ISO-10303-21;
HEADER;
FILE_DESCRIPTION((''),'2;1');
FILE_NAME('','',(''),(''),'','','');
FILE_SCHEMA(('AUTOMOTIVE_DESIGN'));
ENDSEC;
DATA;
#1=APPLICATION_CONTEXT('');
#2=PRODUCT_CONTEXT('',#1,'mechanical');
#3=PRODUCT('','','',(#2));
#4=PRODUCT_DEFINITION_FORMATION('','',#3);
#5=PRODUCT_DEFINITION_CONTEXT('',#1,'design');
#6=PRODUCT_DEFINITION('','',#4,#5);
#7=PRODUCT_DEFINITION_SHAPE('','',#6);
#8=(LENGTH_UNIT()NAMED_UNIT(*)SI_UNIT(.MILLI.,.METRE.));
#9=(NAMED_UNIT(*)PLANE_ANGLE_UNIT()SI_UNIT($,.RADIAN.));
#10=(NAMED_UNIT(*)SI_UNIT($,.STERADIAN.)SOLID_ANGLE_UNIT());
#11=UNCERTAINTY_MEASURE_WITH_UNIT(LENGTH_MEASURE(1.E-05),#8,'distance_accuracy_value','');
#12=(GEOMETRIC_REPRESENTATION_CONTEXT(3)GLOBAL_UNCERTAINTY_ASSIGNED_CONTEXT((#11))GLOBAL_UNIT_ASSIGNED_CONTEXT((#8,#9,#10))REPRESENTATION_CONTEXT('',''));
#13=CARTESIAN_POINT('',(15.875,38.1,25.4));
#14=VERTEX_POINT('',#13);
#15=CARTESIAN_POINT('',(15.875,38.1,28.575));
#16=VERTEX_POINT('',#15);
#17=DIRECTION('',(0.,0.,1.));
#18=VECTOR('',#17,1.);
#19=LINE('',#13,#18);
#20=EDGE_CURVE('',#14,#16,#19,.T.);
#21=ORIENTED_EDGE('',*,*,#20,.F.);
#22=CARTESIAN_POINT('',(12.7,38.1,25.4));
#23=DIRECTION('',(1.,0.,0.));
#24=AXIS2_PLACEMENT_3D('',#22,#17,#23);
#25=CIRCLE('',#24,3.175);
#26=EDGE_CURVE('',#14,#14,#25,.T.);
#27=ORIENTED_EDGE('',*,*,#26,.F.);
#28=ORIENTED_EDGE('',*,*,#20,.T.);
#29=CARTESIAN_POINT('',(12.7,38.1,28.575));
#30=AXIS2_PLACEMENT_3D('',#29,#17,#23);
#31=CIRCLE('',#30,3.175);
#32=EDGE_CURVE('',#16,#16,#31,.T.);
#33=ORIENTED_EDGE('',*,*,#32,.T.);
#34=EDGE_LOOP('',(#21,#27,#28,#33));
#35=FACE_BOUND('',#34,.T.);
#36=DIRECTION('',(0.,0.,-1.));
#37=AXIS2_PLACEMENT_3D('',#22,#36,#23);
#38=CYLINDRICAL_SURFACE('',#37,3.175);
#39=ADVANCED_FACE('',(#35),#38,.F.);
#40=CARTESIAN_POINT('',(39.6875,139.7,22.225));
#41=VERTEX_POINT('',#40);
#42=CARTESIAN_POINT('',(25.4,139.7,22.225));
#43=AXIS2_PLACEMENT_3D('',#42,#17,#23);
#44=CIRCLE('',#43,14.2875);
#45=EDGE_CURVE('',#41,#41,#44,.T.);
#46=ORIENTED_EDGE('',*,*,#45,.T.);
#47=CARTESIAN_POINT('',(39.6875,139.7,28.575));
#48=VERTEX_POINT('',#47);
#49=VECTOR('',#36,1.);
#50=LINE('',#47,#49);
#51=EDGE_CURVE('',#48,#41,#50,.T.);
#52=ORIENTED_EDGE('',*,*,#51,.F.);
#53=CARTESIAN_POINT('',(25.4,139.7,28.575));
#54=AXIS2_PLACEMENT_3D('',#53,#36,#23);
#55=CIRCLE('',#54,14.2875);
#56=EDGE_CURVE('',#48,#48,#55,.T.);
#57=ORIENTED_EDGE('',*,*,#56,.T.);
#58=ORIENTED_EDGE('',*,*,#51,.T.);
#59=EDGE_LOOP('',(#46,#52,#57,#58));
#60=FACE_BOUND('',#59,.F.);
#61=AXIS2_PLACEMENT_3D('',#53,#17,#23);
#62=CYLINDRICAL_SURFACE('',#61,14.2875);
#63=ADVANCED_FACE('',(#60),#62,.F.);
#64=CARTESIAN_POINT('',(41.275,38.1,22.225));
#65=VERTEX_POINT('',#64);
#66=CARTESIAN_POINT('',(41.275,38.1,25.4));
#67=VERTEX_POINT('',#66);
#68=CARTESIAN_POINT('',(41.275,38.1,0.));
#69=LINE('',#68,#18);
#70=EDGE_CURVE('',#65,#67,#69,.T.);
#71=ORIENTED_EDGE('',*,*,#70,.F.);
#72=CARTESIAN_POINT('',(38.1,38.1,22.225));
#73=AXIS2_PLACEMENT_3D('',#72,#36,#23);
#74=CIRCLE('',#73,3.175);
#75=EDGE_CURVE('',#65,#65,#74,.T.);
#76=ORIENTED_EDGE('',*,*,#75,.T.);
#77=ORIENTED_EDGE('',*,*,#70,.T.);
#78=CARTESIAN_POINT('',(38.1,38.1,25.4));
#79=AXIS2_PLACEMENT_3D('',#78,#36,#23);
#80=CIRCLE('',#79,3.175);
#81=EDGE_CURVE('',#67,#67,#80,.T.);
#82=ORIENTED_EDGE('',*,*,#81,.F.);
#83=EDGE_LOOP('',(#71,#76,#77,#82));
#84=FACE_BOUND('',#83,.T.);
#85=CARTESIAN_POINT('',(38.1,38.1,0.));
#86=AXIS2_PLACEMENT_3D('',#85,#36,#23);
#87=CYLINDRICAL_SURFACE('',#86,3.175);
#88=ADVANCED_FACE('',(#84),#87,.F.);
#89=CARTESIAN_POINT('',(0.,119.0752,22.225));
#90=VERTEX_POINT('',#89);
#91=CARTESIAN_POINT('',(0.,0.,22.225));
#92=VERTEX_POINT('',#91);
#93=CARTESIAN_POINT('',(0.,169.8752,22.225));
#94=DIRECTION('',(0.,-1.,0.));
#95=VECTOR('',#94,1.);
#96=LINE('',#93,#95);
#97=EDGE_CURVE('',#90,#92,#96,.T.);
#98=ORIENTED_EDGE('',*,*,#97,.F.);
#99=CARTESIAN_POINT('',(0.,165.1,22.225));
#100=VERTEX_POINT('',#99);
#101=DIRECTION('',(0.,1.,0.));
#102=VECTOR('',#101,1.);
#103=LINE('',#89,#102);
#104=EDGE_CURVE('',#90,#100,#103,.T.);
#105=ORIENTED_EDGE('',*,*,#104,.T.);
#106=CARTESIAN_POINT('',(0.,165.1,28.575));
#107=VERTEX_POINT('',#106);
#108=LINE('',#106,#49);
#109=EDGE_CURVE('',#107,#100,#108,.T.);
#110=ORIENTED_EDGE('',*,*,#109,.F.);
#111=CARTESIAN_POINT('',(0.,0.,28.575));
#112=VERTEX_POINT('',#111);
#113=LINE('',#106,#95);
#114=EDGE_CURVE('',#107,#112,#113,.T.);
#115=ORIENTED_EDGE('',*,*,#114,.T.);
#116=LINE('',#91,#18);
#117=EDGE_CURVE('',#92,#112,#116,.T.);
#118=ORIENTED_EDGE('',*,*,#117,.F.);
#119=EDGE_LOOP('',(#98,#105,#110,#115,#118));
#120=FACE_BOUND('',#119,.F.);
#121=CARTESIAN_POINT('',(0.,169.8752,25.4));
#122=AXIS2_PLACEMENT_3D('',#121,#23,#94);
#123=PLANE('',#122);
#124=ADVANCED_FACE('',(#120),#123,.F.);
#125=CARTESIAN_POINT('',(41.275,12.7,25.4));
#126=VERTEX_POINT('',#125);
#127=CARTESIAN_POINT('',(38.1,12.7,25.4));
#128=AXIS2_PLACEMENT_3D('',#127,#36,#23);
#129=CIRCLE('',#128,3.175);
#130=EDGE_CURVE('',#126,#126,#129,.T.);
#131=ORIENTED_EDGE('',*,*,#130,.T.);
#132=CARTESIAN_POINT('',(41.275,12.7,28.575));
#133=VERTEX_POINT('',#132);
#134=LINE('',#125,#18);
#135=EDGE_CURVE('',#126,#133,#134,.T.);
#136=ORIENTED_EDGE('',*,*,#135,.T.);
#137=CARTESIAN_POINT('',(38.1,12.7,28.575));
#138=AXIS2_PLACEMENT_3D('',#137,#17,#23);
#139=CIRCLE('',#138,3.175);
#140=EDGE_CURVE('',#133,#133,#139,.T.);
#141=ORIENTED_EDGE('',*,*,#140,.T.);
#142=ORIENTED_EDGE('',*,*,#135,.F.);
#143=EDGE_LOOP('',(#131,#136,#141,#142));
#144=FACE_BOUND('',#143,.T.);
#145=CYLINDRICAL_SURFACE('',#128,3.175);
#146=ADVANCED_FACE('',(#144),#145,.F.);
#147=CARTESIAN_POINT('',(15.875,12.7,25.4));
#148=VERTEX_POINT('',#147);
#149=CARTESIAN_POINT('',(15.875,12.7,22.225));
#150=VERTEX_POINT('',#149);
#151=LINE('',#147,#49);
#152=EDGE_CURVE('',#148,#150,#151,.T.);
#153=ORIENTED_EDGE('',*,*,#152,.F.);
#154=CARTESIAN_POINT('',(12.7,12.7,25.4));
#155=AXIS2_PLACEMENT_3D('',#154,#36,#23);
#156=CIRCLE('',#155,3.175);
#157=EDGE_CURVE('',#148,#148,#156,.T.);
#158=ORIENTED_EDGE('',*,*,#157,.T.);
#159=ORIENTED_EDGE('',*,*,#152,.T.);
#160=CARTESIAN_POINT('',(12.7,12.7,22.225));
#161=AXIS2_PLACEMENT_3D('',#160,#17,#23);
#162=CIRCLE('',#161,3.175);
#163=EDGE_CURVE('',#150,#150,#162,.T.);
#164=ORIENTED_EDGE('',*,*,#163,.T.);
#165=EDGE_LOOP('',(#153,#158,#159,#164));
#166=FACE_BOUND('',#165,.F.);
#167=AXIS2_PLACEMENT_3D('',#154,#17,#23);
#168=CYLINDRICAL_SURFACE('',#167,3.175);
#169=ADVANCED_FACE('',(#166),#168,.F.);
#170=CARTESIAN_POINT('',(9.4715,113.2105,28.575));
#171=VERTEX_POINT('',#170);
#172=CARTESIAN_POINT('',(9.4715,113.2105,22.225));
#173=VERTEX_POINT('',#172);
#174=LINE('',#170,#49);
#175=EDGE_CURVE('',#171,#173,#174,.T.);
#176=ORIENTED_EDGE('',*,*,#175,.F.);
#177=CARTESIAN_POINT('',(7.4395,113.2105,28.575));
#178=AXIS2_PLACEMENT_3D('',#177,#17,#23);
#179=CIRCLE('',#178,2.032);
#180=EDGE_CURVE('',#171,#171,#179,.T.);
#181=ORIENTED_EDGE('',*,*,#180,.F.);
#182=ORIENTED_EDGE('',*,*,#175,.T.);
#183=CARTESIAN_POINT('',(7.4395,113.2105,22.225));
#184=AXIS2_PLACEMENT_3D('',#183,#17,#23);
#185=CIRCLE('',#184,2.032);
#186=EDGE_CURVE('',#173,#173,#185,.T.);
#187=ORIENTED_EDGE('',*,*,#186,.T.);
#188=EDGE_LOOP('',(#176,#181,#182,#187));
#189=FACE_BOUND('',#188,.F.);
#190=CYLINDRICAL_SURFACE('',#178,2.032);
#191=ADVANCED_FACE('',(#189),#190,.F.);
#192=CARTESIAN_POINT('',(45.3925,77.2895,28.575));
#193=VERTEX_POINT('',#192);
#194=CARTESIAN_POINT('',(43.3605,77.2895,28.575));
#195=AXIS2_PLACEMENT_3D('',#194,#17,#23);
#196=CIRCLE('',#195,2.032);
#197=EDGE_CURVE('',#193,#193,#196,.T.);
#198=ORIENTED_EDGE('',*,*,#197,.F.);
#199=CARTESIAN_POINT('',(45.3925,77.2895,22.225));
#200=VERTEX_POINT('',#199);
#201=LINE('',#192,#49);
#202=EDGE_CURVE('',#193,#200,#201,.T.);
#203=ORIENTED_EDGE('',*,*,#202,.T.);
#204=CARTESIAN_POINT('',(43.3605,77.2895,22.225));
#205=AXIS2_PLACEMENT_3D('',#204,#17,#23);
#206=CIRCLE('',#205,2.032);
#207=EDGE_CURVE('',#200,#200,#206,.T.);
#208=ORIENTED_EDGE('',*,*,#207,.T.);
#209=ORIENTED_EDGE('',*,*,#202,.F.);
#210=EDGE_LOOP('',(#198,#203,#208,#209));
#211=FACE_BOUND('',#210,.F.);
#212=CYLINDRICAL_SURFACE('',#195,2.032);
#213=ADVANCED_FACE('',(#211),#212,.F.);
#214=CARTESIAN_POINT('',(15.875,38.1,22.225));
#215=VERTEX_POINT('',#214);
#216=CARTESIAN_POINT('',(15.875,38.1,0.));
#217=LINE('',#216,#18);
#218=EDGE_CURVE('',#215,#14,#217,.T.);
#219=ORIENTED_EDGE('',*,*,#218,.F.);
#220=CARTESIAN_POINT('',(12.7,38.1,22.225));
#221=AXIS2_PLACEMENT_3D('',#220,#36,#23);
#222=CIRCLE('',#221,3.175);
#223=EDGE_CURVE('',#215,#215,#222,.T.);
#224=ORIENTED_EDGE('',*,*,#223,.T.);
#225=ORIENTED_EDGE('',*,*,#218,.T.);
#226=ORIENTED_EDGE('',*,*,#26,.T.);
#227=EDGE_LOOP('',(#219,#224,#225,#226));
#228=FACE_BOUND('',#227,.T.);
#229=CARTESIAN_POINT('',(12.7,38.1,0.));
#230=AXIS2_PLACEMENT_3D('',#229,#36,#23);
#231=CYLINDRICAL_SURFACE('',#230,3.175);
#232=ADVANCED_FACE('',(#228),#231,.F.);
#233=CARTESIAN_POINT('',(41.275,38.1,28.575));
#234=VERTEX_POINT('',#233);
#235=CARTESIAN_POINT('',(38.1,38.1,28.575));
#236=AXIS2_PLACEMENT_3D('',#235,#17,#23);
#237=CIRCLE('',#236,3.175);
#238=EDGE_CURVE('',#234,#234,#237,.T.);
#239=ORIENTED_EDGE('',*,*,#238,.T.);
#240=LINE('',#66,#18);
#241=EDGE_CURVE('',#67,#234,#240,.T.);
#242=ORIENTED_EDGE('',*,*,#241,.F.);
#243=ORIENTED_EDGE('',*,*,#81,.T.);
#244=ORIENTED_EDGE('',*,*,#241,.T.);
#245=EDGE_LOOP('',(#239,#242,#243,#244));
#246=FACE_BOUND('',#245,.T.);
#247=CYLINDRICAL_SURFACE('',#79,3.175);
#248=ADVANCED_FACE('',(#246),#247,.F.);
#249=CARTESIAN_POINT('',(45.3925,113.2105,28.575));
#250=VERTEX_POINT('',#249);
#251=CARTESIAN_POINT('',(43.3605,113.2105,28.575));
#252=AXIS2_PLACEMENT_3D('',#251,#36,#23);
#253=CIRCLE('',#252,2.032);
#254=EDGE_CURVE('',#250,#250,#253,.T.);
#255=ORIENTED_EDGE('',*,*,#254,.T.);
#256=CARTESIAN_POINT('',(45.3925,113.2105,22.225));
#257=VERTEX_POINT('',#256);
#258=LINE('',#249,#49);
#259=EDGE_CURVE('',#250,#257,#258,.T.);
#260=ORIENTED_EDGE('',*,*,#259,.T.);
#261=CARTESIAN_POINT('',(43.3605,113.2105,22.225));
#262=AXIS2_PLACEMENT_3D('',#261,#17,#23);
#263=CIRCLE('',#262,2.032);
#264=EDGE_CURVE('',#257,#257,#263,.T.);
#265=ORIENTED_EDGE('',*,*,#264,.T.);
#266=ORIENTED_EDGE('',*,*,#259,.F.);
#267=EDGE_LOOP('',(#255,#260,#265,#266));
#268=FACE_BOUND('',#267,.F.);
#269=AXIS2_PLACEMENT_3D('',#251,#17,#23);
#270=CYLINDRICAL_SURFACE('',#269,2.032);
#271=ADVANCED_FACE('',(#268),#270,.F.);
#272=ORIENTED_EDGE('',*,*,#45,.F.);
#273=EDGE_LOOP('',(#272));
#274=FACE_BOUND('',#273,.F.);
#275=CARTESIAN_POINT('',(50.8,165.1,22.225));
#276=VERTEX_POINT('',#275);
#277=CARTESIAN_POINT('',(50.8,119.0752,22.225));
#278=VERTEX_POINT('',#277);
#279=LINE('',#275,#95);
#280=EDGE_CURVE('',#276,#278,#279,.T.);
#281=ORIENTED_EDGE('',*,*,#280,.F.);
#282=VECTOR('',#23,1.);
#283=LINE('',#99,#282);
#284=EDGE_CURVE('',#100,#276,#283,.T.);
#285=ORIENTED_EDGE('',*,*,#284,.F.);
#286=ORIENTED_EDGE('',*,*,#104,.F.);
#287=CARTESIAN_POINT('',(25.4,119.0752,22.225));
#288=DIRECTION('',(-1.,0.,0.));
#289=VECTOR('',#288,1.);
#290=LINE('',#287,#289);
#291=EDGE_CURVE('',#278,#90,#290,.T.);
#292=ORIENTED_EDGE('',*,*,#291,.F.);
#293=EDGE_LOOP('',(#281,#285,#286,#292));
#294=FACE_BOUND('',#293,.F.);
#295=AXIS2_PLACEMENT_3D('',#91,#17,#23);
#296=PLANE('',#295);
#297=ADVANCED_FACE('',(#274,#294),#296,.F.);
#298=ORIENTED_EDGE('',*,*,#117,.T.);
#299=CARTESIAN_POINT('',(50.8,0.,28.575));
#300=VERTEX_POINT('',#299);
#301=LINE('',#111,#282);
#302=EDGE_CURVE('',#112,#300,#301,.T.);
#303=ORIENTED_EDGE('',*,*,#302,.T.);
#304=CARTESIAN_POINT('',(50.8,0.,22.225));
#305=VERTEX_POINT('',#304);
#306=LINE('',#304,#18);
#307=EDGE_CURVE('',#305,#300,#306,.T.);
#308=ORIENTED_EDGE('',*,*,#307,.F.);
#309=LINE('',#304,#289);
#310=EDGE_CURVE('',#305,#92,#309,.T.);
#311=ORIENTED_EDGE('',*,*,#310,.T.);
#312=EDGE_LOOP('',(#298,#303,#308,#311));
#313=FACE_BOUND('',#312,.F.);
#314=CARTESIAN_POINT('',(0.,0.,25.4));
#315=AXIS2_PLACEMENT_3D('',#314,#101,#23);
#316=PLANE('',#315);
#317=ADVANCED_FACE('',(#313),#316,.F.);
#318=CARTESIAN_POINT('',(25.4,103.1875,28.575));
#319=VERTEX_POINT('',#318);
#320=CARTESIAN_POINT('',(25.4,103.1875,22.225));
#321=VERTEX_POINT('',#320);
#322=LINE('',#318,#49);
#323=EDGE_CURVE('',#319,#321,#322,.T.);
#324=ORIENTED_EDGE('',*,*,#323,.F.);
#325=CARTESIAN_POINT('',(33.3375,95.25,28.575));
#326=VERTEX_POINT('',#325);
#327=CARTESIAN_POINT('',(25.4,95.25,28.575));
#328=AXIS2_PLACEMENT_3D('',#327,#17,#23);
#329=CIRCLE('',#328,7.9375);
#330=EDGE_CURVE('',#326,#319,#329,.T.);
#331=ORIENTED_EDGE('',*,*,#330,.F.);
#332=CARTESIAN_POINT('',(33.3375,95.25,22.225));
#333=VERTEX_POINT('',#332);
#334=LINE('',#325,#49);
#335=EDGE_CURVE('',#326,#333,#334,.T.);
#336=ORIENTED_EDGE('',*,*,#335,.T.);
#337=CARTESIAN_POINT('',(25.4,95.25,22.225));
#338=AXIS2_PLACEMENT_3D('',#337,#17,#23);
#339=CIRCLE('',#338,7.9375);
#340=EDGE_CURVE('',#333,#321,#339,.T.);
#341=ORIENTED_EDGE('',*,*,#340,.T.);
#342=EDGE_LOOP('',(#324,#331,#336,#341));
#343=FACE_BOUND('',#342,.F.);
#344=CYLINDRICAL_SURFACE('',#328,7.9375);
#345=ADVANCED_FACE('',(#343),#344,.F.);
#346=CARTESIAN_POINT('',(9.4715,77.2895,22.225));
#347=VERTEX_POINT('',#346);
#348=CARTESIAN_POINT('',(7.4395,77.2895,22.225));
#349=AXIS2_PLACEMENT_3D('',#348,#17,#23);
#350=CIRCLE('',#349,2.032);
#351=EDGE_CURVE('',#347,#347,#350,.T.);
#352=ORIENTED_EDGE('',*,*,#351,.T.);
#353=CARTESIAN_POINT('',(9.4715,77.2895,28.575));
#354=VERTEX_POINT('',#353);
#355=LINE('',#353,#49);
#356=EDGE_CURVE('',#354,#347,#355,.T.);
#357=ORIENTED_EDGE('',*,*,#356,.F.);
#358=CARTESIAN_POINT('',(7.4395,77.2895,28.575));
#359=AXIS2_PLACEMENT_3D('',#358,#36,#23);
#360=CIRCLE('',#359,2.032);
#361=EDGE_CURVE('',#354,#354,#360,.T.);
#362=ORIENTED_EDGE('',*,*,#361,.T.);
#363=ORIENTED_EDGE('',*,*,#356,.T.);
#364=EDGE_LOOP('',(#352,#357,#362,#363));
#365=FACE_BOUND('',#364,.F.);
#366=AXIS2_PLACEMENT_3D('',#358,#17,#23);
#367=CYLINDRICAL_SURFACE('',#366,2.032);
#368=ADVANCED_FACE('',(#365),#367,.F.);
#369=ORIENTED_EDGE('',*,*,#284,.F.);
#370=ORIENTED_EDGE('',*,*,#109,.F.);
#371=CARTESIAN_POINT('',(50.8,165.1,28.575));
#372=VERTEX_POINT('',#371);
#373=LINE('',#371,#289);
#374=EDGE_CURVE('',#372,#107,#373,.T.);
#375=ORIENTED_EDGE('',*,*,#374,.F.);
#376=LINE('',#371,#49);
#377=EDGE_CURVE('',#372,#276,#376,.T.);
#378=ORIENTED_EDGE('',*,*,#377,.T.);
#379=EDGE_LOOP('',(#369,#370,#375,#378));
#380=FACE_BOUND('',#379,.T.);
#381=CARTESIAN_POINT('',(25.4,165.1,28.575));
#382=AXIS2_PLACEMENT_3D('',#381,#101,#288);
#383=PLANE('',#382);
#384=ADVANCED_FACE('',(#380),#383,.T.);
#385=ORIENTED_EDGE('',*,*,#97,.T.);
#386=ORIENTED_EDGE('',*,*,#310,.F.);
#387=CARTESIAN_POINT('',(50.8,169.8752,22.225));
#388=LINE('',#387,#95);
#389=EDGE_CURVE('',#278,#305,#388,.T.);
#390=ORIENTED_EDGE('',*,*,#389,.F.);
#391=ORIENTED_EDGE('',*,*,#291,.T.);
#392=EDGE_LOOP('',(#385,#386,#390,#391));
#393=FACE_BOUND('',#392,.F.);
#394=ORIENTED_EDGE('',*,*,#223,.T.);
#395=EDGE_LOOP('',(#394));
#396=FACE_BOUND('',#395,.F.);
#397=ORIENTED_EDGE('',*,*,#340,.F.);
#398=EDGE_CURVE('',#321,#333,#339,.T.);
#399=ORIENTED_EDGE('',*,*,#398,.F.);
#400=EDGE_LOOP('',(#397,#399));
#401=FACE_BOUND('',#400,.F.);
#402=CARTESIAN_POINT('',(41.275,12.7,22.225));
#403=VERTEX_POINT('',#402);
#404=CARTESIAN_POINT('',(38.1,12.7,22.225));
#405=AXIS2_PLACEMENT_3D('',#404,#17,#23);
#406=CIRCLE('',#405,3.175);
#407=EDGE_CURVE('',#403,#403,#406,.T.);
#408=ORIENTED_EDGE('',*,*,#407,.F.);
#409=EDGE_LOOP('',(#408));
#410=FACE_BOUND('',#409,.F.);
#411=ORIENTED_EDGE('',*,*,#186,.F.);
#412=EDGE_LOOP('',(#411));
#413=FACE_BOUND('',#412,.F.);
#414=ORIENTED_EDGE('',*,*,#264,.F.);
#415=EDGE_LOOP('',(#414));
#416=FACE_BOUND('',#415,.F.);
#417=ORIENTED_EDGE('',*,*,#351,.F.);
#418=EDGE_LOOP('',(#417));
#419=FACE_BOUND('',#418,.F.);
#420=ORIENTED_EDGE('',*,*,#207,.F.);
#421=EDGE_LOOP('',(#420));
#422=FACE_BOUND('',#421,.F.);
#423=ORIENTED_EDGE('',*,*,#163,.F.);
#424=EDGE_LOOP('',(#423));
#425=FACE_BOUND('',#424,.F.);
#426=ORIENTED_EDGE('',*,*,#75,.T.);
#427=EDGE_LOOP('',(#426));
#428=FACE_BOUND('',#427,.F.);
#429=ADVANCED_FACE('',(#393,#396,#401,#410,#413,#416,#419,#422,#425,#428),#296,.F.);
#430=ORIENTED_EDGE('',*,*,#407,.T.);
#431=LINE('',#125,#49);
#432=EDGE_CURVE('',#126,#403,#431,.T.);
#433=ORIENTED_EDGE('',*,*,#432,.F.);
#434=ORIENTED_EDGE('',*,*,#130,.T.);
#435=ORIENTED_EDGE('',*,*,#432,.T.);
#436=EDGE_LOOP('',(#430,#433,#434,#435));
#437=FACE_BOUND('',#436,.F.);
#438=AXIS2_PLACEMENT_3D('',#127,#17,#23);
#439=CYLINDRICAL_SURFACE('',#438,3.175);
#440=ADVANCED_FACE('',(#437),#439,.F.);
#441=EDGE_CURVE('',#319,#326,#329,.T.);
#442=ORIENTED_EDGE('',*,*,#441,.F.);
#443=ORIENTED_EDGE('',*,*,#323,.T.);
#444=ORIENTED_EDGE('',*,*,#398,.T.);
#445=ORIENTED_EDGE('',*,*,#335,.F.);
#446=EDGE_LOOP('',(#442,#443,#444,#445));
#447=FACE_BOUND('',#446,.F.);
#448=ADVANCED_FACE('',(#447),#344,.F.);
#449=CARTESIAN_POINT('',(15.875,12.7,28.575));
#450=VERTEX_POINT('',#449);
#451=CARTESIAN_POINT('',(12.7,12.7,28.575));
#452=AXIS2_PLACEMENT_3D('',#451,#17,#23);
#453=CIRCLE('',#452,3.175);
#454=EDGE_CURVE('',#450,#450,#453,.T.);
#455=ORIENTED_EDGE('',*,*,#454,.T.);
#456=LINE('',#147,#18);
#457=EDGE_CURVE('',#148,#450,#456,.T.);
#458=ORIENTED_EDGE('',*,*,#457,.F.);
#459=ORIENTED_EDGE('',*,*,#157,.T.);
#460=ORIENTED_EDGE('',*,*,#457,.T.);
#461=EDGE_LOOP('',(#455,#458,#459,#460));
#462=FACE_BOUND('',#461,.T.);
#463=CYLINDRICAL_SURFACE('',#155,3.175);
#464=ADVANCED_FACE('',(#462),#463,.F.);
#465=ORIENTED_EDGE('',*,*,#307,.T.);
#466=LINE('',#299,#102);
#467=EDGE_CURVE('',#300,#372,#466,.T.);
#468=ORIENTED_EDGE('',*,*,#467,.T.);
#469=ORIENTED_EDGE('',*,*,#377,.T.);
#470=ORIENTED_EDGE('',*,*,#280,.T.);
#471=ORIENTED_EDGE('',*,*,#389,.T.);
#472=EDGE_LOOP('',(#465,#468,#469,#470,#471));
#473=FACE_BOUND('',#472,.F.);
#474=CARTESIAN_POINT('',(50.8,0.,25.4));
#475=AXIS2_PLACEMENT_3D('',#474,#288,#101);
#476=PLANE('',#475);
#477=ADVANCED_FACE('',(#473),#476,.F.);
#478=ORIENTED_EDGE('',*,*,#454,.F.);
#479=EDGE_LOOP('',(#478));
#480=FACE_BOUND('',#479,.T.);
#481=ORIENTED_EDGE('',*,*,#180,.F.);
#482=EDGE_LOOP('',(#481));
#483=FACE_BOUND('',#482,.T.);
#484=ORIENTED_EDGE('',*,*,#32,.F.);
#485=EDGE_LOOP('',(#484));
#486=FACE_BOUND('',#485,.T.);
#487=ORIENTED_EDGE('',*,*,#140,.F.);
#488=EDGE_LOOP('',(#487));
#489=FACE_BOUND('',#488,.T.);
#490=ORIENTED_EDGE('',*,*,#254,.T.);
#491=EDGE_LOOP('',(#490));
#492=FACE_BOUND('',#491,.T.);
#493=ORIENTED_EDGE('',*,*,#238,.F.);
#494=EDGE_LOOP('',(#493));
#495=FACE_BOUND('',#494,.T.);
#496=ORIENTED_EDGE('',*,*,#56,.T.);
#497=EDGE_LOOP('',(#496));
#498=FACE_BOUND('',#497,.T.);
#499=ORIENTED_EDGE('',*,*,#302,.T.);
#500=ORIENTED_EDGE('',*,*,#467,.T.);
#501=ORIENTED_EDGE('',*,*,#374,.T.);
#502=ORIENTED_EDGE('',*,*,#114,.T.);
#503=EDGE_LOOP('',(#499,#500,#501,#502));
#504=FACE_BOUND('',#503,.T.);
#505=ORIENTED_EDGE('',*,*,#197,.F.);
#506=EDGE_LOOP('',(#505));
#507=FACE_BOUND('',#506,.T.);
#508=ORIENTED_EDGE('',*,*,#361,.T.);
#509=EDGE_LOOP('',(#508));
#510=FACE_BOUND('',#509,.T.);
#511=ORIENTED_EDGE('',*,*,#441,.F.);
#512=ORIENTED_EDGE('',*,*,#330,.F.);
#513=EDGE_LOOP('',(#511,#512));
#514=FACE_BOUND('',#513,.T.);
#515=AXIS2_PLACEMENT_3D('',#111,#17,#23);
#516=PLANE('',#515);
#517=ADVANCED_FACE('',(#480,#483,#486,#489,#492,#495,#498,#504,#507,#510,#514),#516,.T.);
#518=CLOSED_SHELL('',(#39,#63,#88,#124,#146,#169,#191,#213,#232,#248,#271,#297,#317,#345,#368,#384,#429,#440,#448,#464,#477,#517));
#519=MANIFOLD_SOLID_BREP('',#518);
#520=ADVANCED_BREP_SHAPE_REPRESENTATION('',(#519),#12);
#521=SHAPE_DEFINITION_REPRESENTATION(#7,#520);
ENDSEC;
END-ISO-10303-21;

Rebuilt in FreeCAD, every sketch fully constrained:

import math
import FreeCAD as App
import Part
import Sketcher

V = App.Vector
Q = App.Units.Quantity

doc = App.newDocument("Part")
params = doc.addObject("Spreadsheet::Sheet", "Params")
for row, (alias, value) in enumerate([
    ("sketch1_diameter", "0.16 in"),
    ("sketch1_diameter2", "0.25 in"),
    ("sketch1_width", "2 in"),
    ("sketch1_diameter3", "1.125 in"),
    ("sketch1_height", "6.688 in"),
    ("pad1_length", "1 in"),
    ("sketch2_width", "1.75 in"),
    ("sketch2_height", "0.75 in"),
    ("pocket1_length", "10 in"),
    ("sketch3_diameter", "0.25 in"),
    ("pocket2_length", "1 in"),
    ("sketch4_width", "2 in"),
    ("sketch4_width2", "1.75 in"),
    ("sketch4_height", "0.75 in"),
    ("sketch4_height2", "0.875 in"),
    ("pocket3_length", "10 in"),
    ("sketch5_diameter", "0.25 in"),
    ("sketch5_diameter2", "0.16 in"),
    ("sketch5_width", "2 in"),
    ("sketch5_diameter3", "1.125 in"),
    ("sketch5_height", "6.688 in"),
    ("pad2_length", "0.125 in"),
    ("sketch6_diameter", "0.75 in"),
    ("sketch6_diameter2", "1.125 in"),
    ("pad3_length", "0.25 in"),
    ("sketch7_diameter", "0.625 in"),
    ("pocket4_length", "1 in"),
    ("sketch8_diameter", "1.125 in"),
    ("sketch8_diameter2", "0.75 in"),
    ("pocket5_length", "1 in"),
    ("sketch9_diameter", "0.16 in"),
    ("pocket6_length", "0.25 in"),
    ("sketch10_diameter", "0.16 in"),
    ("pad4_length", "0.25 in"),
    ("sketch11_width", "2 in"),
    ("sketch11_diameter", "1.125 in"),
    ("pocket7_length", "1 in"),
    ("sketch12_diameter", "1.125 in"),
    ("sketch12_height", "1.812 in"),
    ("pad5_length", "0.25 in"),
], start=1):
    params.set(f"A{row}", alias)
    params.set(f"B{row}", "=" + value)
    params.setAlias(f"B{row}", alias)

body = doc.addObject("PartDesign::Body", "Body")

sketch1 = body.newObject("Sketcher::SketchObject", "Sketch")
sketch1.AttachmentSupport = (doc.getObject("XY_Plane"), [""])
sketch1.MapMode = "FlatFace"
sketch1.addGeometry([
    Part.LineSegment(V(0, 0, 0), V(50.8, 0, 0)),
    Part.LineSegment(V(50.8, 0, 0), V(50.8, 169.9, 0)),
    Part.LineSegment(V(50.8, 169.9, 0), V(25.4, 169.9, 0)),
    Part.LineSegment(V(25.4, 169.9, 0), V(0, 169.9, 0)),
    Part.LineSegment(V(0, 169.9, 0), V(0, 0, 0)),
    Part.Circle(V(43.4, 162.4, 0), V(0, 0, 1), 2),
    Part.Circle(V(25.4, 144.5, 0), V(0, 0, 1), 14.3),
    Part.Circle(V(12.7, 38.1, 0), V(0, 0, 1), 3.2),
    Part.Circle(V(38.1, 38.1, 0), V(0, 0, 1), 3.2),
    Part.ArcOfCircle(Part.Circle(V(7.4, 126.5, 0), V(0, 0, 1), 2), math.radians(90), math.radians(360)),
    Part.ArcOfCircle(Part.Circle(V(7.4, 126.5, 0), V(0, 0, 1), 2), math.radians(0), math.radians(90)),
    Part.ArcOfCircle(Part.Circle(V(7.4, 162.4, 0), V(0, 0, 1), 2), math.radians(0), math.radians(270)),
    Part.ArcOfCircle(Part.Circle(V(7.4, 162.4, 0), V(0, 0, 1), 2), math.radians(-90), math.radians(0)),
    Part.Circle(V(43.4, 126.5, 0), V(0, 0, 1), 2),
], False)
sketch1.addConstraint([
    Sketcher.Constraint("Coincident", 0, 2, 1, 1),
    Sketcher.Constraint("Coincident", 1, 2, 2, 1),
    Sketcher.Constraint("Coincident", 2, 2, 3, 1),
    Sketcher.Constraint("Coincident", 3, 2, 4, 1),
    Sketcher.Constraint("Coincident", 4, 2, 0, 1),
    Sketcher.Constraint("Tangent", 9, 1, 10, 2),
    Sketcher.Constraint("Coincident", 10, 1, 9, 2),
    Sketcher.Constraint("Tangent", 11, 1, 12, 2),
    Sketcher.Constraint("Coincident", 12, 1, 11, 2),
    Sketcher.Constraint("Horizontal", 0),
    Sketcher.Constraint("Vertical", 1),
    Sketcher.Constraint("Horizontal", 2),
    Sketcher.Constraint("Horizontal", 3),
    Sketcher.Constraint("Vertical", 4),
    Sketcher.Constraint("Coincident", 4, 2, -1, 1),
    Sketcher.Constraint("Equal", 7, 8),
    Sketcher.Constraint("Equal", 5, 9),
    Sketcher.Constraint("Equal", 10, 11),
    Sketcher.Constraint("Equal", 12, 13),
    Sketcher.Constraint("Horizontal", 7, 3, 8, 3),
    Sketcher.Constraint("Horizontal", 5, 3, 11, 3),
    Sketcher.Constraint("Horizontal", 10, 3, 13, 3),
    Sketcher.Constraint("Horizontal", 13, 3, 10, 1),
    Sketcher.Constraint("Horizontal", 12, 3, 11, 1),
    Sketcher.Constraint("Vertical", 10, 3, 11, 3),
    Sketcher.Constraint("Vertical", 5, 3, 13, 3),
    Sketcher.Constraint("Vertical", 6, 3, 2, 2),
    Sketcher.Constraint("Vertical", 12, 3, 9, 1),
    Sketcher.Constraint("Vertical", 9, 1, 12, 1),
    Sketcher.Constraint("Equal", 2, 3),
    Sketcher.Constraint("Diameter", 5, Q("0.16 in")),
    Sketcher.Constraint("Diameter", 7, Q("0.25 in")),
    Sketcher.Constraint("DistanceX", 0, 1, 0, 2, Q("2 in")),
    Sketcher.Constraint("Diameter", 6, Q("1.125 in")),
    Sketcher.Constraint("DistanceX", 7, 3, 8, 3, Q("1 in")),
    Sketcher.Constraint("DistanceY", 6, 3, 1, 2, Q("1 in")),
    Sketcher.Constraint("DistanceX", -1, 1, 7, 3, Q("0.5 in")),
    Sketcher.Constraint("DistanceY", -1, 1, 7, 3, Q("1.5 in")),
    Sketcher.Constraint("DistanceY", 1, 1, 1, 2, Q("6.688 in")),
    Sketcher.Constraint("DistanceX", -1, 1, 5, 3, Q("1.7071 in")),
    Sketcher.Constraint("DistanceY", -1, 1, 5, 3, Q("6.3951 in")),
    Sketcher.Constraint("DistanceX", -1, 1, 9, 3, Q("0.2929 in")),
    Sketcher.Constraint("DistanceY", -1, 1, 9, 3, Q("4.9809 in")),
])
sketch1.setExpression("Constraints[30]", "Params.sketch1_diameter")
sketch1.setExpression("Constraints[31]", "Params.sketch1_diameter2")
sketch1.setExpression("Constraints[32]", "Params.sketch1_width")
sketch1.setExpression("Constraints[33]", "Params.sketch1_diameter3")
sketch1.setExpression("Constraints[38]", "Params.sketch1_height")
pad1 = body.newObject("PartDesign::Pad", "Pad")
pad1.Profile = sketch1
pad1.setExpression("Length", "Params.pad1_length")

sketch2 = body.newObject("Sketcher::SketchObject", "Sketch001")
sketch2.AttachmentSupport = (doc.getObject("XZ_Plane"), [""])
sketch2.MapMode = "FlatFace"
sketch2.AttachmentOffset = App.Placement(V(0, 0, -6.688 * 25.4), App.Rotation())
sketch2.addGeometry([
    Part.LineSegment(V(48, 3, 0), V(3, 3, 0)),
    Part.LineSegment(V(3, 3, 0), V(3, 22, 0)),
    Part.LineSegment(V(3, 22, 0), V(48, 22, 0)),
    Part.LineSegment(V(48, 22, 0), V(48, 3, 0)),
], False)
sketch2.addConstraint([
    Sketcher.Constraint("Coincident", 0, 2, 1, 1),
    Sketcher.Constraint("Coincident", 1, 2, 2, 1),
    Sketcher.Constraint("Coincident", 2, 2, 3, 1),
    Sketcher.Constraint("Coincident", 3, 2, 0, 1),
    Sketcher.Constraint("Horizontal", 0),
    Sketcher.Constraint("Vertical", 1),
    Sketcher.Constraint("Horizontal", 2),
    Sketcher.Constraint("Vertical", 3),
    Sketcher.Constraint("DistanceX", 0, 2, 0, 1, Q("1.75 in")),
    Sketcher.Constraint("DistanceY", 1, 1, 1, 2, Q("0.75 in")),
    Sketcher.Constraint("DistanceX", -1, 1, 0, 2, Q("0.125 in")),
    Sketcher.Constraint("DistanceY", -1, 1, 0, 2, Q("0.125 in")),
])
sketch2.setExpression("Constraints[8]", "Params.sketch2_width")
sketch2.setExpression("Constraints[9]", "Params.sketch2_height")
pocket1 = body.newObject("PartDesign::Pocket", "Pocket")
pocket1.Profile = sketch2
pocket1.setExpression("Length", "Params.pocket1_length")
pocket1.Reversed = True

sketch3 = body.newObject("Sketcher::SketchObject", "Sketch002")
sketch3.AttachmentSupport = (doc.getObject("XY_Plane"), [""])
sketch3.MapMode = "FlatFace"
sketch3.AttachmentOffset = App.Placement(V(0, 0, 1 * 25.4), App.Rotation())
sketch3.addGeometry([
    Part.Circle(V(12.7, 12.7, 0), V(0, 0, 1), 3.2),
    Part.Circle(V(38.1, 12.7, 0), V(0, 0, 1), 3.2),
], False)
sketch3.addConstraint([
    Sketcher.Constraint("Equal", 0, 1),
    Sketcher.Constraint("Horizontal", 0, 3, 1, 3),
    Sketcher.Constraint("Diameter", 0, Q("0.25 in")),
    Sketcher.Constraint("DistanceX", 0, 3, 1, 3, Q("1 in")),
    Sketcher.Constraint("DistanceX", -1, 1, 0, 3, Q("0.5 in")),
    Sketcher.Constraint("DistanceY", -1, 1, 0, 3, Q("0.5 in")),
])
sketch3.setExpression("Constraints[2]", "Params.sketch3_diameter")
pocket2 = body.newObject("PartDesign::Pocket", "Pocket001")
pocket2.Profile = sketch3
pocket2.setExpression("Length", "Params.pocket2_length")

sketch4 = body.newObject("Sketcher::SketchObject", "Sketch003")
sketch4.AttachmentSupport = (doc.getObject("XZ_Plane"), [""])
sketch4.MapMode = "FlatFace"
sketch4.AttachmentOffset = App.Placement(V(0, 0, -6.688 * 25.4), App.Rotation())
sketch4.addGeometry([
    Part.LineSegment(V(47.6, 3.2, 0), V(47.6, 22.2, 0)),
    Part.LineSegment(V(47.6, 22.2, 0), V(50.8, 22.2, 0)),
    Part.LineSegment(V(50.8, 22.2, 0), V(50.8, 0, 0)),
    Part.LineSegment(V(50.8, 0, 0), V(0, 0, 0)),
    Part.LineSegment(V(0, 0, 0), V(0, 22.2, 0)),
    Part.LineSegment(V(0, 22.2, 0), V(3.2, 22.2, 0)),
    Part.LineSegment(V(3.2, 22.2, 0), V(3.2, 3.2, 0)),
    Part.LineSegment(V(3.2, 3.2, 0), V(47.6, 3.2, 0)),
], False)
sketch4.addConstraint([
    Sketcher.Constraint("Coincident", 0, 2, 1, 1),
    Sketcher.Constraint("Coincident", 1, 2, 2, 1),
    Sketcher.Constraint("Coincident", 2, 2, 3, 1),
    Sketcher.Constraint("Coincident", 3, 2, 4, 1),
    Sketcher.Constraint("Coincident", 4, 2, 5, 1),
    Sketcher.Constraint("Coincident", 5, 2, 6, 1),
    Sketcher.Constraint("Coincident", 6, 2, 7, 1),
    Sketcher.Constraint("Coincident", 7, 2, 0, 1),
    Sketcher.Constraint("Vertical", 0),
    Sketcher.Constraint("Horizontal", 1),
    Sketcher.Constraint("Vertical", 2),
    Sketcher.Constraint("Horizontal", 3),
    Sketcher.Constraint("Vertical", 4),
    Sketcher.Constraint("Horizontal", 5),
    Sketcher.Constraint("Vertical", 6),
    Sketcher.Constraint("Horizontal", 7),
    Sketcher.Constraint("Coincident", 3, 2, -1, 1),
    Sketcher.Constraint("Horizontal", 1, 2, 4, 2),
    Sketcher.Constraint("Equal", 1, 5),
    Sketcher.Constraint("DistanceX", 3, 2, 3, 1, Q("2 in")),
    Sketcher.Constraint("DistanceX", 7, 1, 7, 2, Q("1.75 in")),
    Sketcher.Constraint("DistanceY", 0, 1, 0, 2, Q("0.75 in")),
    Sketcher.Constraint("DistanceY", 2, 2, 2, 1, Q("0.875 in")),
])
sketch4.setExpression("Constraints[19]", "Params.sketch4_width")
sketch4.setExpression("Constraints[20]", "Params.sketch4_width2")
sketch4.setExpression("Constraints[21]", "Params.sketch4_height")
sketch4.setExpression("Constraints[22]", "Params.sketch4_height2")
pocket3 = body.newObject("PartDesign::Pocket", "Pocket002")
pocket3.Profile = sketch4
pocket3.setExpression("Length", "Params.pocket3_length")
pocket3.Reversed = True

sketch5 = body.newObject("Sketcher::SketchObject", "Sketch004")
sketch5.AttachmentSupport = (doc.getObject("XY_Plane"), [""])
sketch5.MapMode = "FlatFace"
sketch5.AttachmentOffset = App.Placement(V(0, 0, 1 * 25.4), App.Rotation())
sketch5.addGeometry([
    Part.LineSegment(V(0, 169.9, 0), V(0, 0, 0)),
    Part.LineSegment(V(0, 0, 0), V(50.8, 0, 0)),
    Part.LineSegment(V(50.8, 0, 0), V(50.8, 169.9, 0)),
    Part.LineSegment(V(50.8, 169.9, 0), V(0, 169.9, 0)),
    Part.Circle(V(12.7, 12.7, 0), V(0, 0, 1), 3.2),
    Part.Circle(V(12.7, 38.1, 0), V(0, 0, 1), 3.2),
    Part.Circle(V(38.1, 12.7, 0), V(0, 0, 1), 3.2),
    Part.Circle(V(38.1, 38.1, 0), V(0, 0, 1), 3.2),
    Part.Circle(V(7.4, 126.5, 0), V(0, 0, 1), 2),
    Part.Circle(V(7.4, 162.4, 0), V(0, 0, 1), 2),
    Part.Circle(V(25.4, 144.5, 0), V(0, 0, 1), 14.3),
    Part.Circle(V(43.4, 126.5, 0), V(0, 0, 1), 2),
    Part.Circle(V(43.4, 162.4, 0), V(0, 0, 1), 2),
], False)
sketch5.addConstraint([
    Sketcher.Constraint("Coincident", 0, 2, 1, 1),
    Sketcher.Constraint("Coincident", 1, 2, 2, 1),
    Sketcher.Constraint("Coincident", 2, 2, 3, 1),
    Sketcher.Constraint("Coincident", 3, 2, 0, 1),
    Sketcher.Constraint("Vertical", 0),
    Sketcher.Constraint("Horizontal", 1),
    Sketcher.Constraint("Vertical", 2),
    Sketcher.Constraint("Horizontal", 3),
    Sketcher.Constraint("Coincident", 0, 2, -1, 1),
    Sketcher.Constraint("Equal", 4, 5),
    Sketcher.Constraint("Equal", 5, 6),
    Sketcher.Constraint("Equal", 6, 7),
    Sketcher.Constraint("Equal", 8, 9),
    Sketcher.Constraint("Equal", 9, 11),
    Sketcher.Constraint("Equal", 11, 12),
    Sketcher.Constraint("Horizontal", 4, 3, 6, 3),
    Sketcher.Constraint("Horizontal", 5, 3, 7, 3),
    Sketcher.Constraint("Horizontal", 8, 3, 11, 3),
    Sketcher.Constraint("Horizontal", 9, 3, 12, 3),
    Sketcher.Constraint("Vertical", 4, 3, 5, 3),
    Sketcher.Constraint("Vertical", 6, 3, 7, 3),
    Sketcher.Constraint("Vertical", 8, 3, 9, 3),
    Sketcher.Constraint("Vertical", 11, 3, 12, 3),
    Sketcher.Constraint("Diameter", 4, Q("0.25 in")),
    Sketcher.Constraint("Diameter", 8, Q("0.16 in")),
    Sketcher.Constraint("DistanceX", 1, 1, 1, 2, Q("2 in")),
    Sketcher.Constraint("Diameter", 10, Q("1.125 in")),
    Sketcher.Constraint("DistanceX", -1, 1, 10, 3, Q("1 in")),
    Sketcher.Constraint("DistanceY", 4, 3, 5, 3, Q("1 in")),
    Sketcher.Constraint("DistanceX", 4, 3, 6, 3, Q("1 in")),
    Sketcher.Constraint("DistanceY", 10, 3, 2, 2, Q("1 in")),
    Sketcher.Constraint("DistanceX", -1, 1, 4, 3, Q("0.5 in")),
    Sketcher.Constraint("DistanceY", -1, 1, 4, 3, Q("0.5 in")),
    Sketcher.Constraint("DistanceY", 0, 2, 0, 1, Q("6.688 in")),
    Sketcher.Constraint("DistanceX", -1, 1, 8, 3, Q("0.2929 in")),
    Sketcher.Constraint("DistanceY", -1, 1, 8, 3, Q("4.9809 in")),
    Sketcher.Constraint("DistanceY", -1, 1, 9, 3, Q("6.3951 in")),
    Sketcher.Constraint("DistanceX", -1, 1, 11, 3, Q("1.7071 in")),
])
sketch5.setExpression("Constraints[23]", "Params.sketch5_diameter")
sketch5.setExpression("Constraints[24]", "Params.sketch5_diameter2")
sketch5.setExpression("Constraints[25]", "Params.sketch5_width")
sketch5.setExpression("Constraints[26]", "Params.sketch5_diameter3")
sketch5.setExpression("Constraints[33]", "Params.sketch5_height")
pad2 = body.newObject("PartDesign::Pad", "Pad001")
pad2.Profile = sketch5
pad2.setExpression("Length", "Params.pad2_length")

sketch6 = body.newObject("Sketcher::SketchObject", "Sketch005")
sketch6.AttachmentSupport = (doc.getObject("XY_Plane"), [""])
sketch6.MapMode = "FlatFace"
sketch6.AttachmentOffset = App.Placement(V(0, 0, 1.125 * 25.4), App.Rotation())
sketch6.addGeometry([
    Part.Circle(V(25, 144, 0), V(0, 0, 1), 14),
    Part.Circle(V(25, 144, 0), V(0, 0, 1), 10),
], False)
sketch6.addConstraint([
    Sketcher.Constraint("Coincident", 1, 3, 0, 3),
    Sketcher.Constraint("Diameter", 1, Q("0.75 in")),
    Sketcher.Constraint("Diameter", 0, Q("1.125 in")),
    Sketcher.Constraint("DistanceX", -1, 1, 0, 3, Q("1 in")),
    Sketcher.Constraint("DistanceY", -1, 1, 0, 3, Q("5.688 in")),
])
sketch6.setExpression("Constraints[1]", "Params.sketch6_diameter")
sketch6.setExpression("Constraints[2]", "Params.sketch6_diameter2")
pad3 = body.newObject("PartDesign::Pad", "Pad002")
pad3.Profile = sketch6
pad3.setExpression("Length", "Params.pad3_length")
pad3.Reversed = True

sketch7 = body.newObject("Sketcher::SketchObject", "Sketch006")
sketch7.AttachmentSupport = (doc.getObject("XY_Plane"), [""])
sketch7.MapMode = "FlatFace"
sketch7.AttachmentOffset = App.Placement(V(0, 0, 1.125 * 25.4), App.Rotation())
sketch7.addGeometry(Part.Circle(V(25, 95, 0), V(0, 0, 1), 8), False)
sketch7.addConstraint([
    Sketcher.Constraint("Diameter", 0, Q("0.625 in")),
    Sketcher.Constraint("DistanceX", -1, 1, 0, 3, Q("1 in")),
    Sketcher.Constraint("DistanceY", -1, 1, 0, 3, Q("3.75 in")),
])
sketch7.setExpression("Constraints[0]", "Params.sketch7_diameter")
pocket4 = body.newObject("PartDesign::Pocket", "Pocket003")
pocket4.Profile = sketch7
pocket4.setExpression("Length", "Params.pocket4_length")

sketch8 = body.newObject("Sketcher::SketchObject", "Sketch007")
sketch8.AttachmentSupport = (doc.getObject("XY_Plane"), [""])
sketch8.MapMode = "FlatFace"
sketch8.AttachmentOffset = App.Placement(V(0, 0, 1.125 * 25.4), App.Rotation())
sketch8.addGeometry([
    Part.Circle(V(25, 144, 0), V(0, 0, 1), 14),
    Part.Circle(V(25, 144, 0), V(0, 0, 1), 10),
], False)
sketch8.addConstraint([
    Sketcher.Constraint("Coincident", 1, 3, 0, 3),
    Sketcher.Constraint("Diameter", 0, Q("1.125 in")),
    Sketcher.Constraint("Diameter", 1, Q("0.75 in")),
    Sketcher.Constraint("DistanceX", -1, 1, 0, 3, Q("1 in")),
    Sketcher.Constraint("DistanceY", -1, 1, 0, 3, Q("5.688 in")),
])
sketch8.setExpression("Constraints[1]", "Params.sketch8_diameter")
sketch8.setExpression("Constraints[2]", "Params.sketch8_diameter2")
pocket5 = body.newObject("PartDesign::Pocket", "Pocket004")
pocket5.Profile = sketch8
pocket5.setExpression("Length", "Params.pocket5_length")

sketch9 = body.newObject("Sketcher::SketchObject", "Sketch008")
sketch9.AttachmentSupport = (doc.getObject("XY_Plane"), [""])
sketch9.MapMode = "FlatFace"
sketch9.AttachmentOffset = App.Placement(V(0, 0, 1.125 * 25.4), App.Rotation())
sketch9.addGeometry([
    Part.Circle(V(7.4, 77.3, 0), V(0, 0, 1), 2),
    Part.Circle(V(43.4, 113.2, 0), V(0, 0, 1), 2),
    Part.Circle(V(7.4, 162.4, 0), V(0, 0, 1), 2),
    Part.Circle(V(7.4, 126.5, 0), V(0, 0, 1), 2),
    Part.Circle(V(43.4, 162.4, 0), V(0, 0, 1), 2),
    Part.Circle(V(43.4, 126.5, 0), V(0, 0, 1), 2),
    Part.Circle(V(7.4, 113.2, 0), V(0, 0, 1), 2),
    Part.Circle(V(43.4, 77.3, 0), V(0, 0, 1), 2),
], False)
sketch9.addConstraint([
    Sketcher.Constraint("Equal", 0, 1),
    Sketcher.Constraint("Equal", 1, 2),
    Sketcher.Constraint("Equal", 2, 3),
    Sketcher.Constraint("Equal", 3, 4),
    Sketcher.Constraint("Equal", 4, 5),
    Sketcher.Constraint("Equal", 5, 6),
    Sketcher.Constraint("Equal", 6, 7),
    Sketcher.Constraint("Horizontal", 2, 3, 4, 3),
    Sketcher.Constraint("Horizontal", 3, 3, 5, 3),
    Sketcher.Constraint("Horizontal", 1, 3, 6, 3),
    Sketcher.Constraint("Horizontal", 0, 3, 7, 3),
    Sketcher.Constraint("Vertical", 0, 3, 2, 3),
    Sketcher.Constraint("Vertical", 2, 3, 3, 3),
    Sketcher.Constraint("Vertical", 1, 3, 4, 3),
    Sketcher.Constraint("Vertical", 4, 3, 5, 3),
    Sketcher.Constraint("Vertical", 3, 3, 6, 3),
    Sketcher.Constraint("Vertical", 5, 3, 7, 3),
    Sketcher.Constraint("Diameter", 0, Q("0.16 in")),
    Sketcher.Constraint("DistanceY", 1, 3, 2, 3, Q("1.938 in")),
    Sketcher.Constraint("DistanceY", 0, 3, 3, 3, Q("1.938 in")),
    Sketcher.Constraint("DistanceX", -1, 1, 0, 3, Q("0.2929 in")),
    Sketcher.Constraint("DistanceY", -1, 1, 0, 3, Q("3.0429 in")),
    Sketcher.Constraint("DistanceX", -1, 1, 1, 3, Q("1.7071 in")),
    Sketcher.Constraint("DistanceY", -1, 1, 1, 3, Q("4.4571 in")),
])
sketch9.setExpression("Constraints[17]", "Params.sketch9_diameter")
pocket6 = body.newObject("PartDesign::Pocket", "Pocket005")
pocket6.Profile = sketch9
pocket6.setExpression("Length", "Params.pocket6_length")

sketch10 = body.newObject("Sketcher::SketchObject", "Sketch009")
sketch10.AttachmentSupport = (doc.getObject("XY_Plane"), [""])
sketch10.MapMode = "FlatFace"
sketch10.AttachmentOffset = App.Placement(V(0, 0, 1.125 * 25.4), App.Rotation())
sketch10.addGeometry([
    Part.Circle(V(7.4, 162.4, 0), V(0, 0, 1), 2),
    Part.Circle(V(7.4, 126.5, 0), V(0, 0, 1), 2),
    Part.Circle(V(43.4, 162.4, 0), V(0, 0, 1), 2),
    Part.Circle(V(43.4, 126.5, 0), V(0, 0, 1), 2),
], False)
sketch10.addConstraint([
    Sketcher.Constraint("Equal", 0, 1),
    Sketcher.Constraint("Equal", 1, 2),
    Sketcher.Constraint("Equal", 2, 3),
    Sketcher.Constraint("Horizontal", 0, 3, 2, 3),
    Sketcher.Constraint("Horizontal", 1, 3, 3, 3),
    Sketcher.Constraint("Vertical", 0, 3, 1, 3),
    Sketcher.Constraint("Vertical", 2, 3, 3, 3),
    Sketcher.Constraint("Diameter", 0, Q("0.16 in")),
    Sketcher.Constraint("DistanceX", -1, 1, 0, 3, Q("0.2929 in")),
    Sketcher.Constraint("DistanceY", -1, 1, 0, 3, Q("6.3951 in")),
    Sketcher.Constraint("DistanceY", -1, 1, 1, 3, Q("4.9809 in")),
    Sketcher.Constraint("DistanceX", -1, 1, 2, 3, Q("1.7071 in")),
])
sketch10.setExpression("Constraints[7]", "Params.sketch10_diameter")
pad4 = body.newObject("PartDesign::Pad", "Pad003")
pad4.Profile = sketch10
pad4.setExpression("Length", "Params.pad4_length")
pad4.Reversed = True

sketch11 = body.newObject("Sketcher::SketchObject", "Sketch010")
sketch11.AttachmentSupport = (doc.getObject("XY_Plane"), [""])
sketch11.MapMode = "FlatFace"
sketch11.AttachmentOffset = App.Placement(V(0, 0, 1.125 * 25.4), App.Rotation())
sketch11.addGeometry([
    Part.LineSegment(V(51, 170, 0), V(0, 170, 0)),
    Part.LineSegment(V(0, 170, 0), V(0, 119, 0)),
    Part.LineSegment(V(0, 119, 0), V(51, 119, 0)),
    Part.LineSegment(V(51, 119, 0), V(51, 170, 0)),
    Part.Circle(V(25, 144, 0), V(0, 0, 1), 14),
], False)
sketch11.addConstraint([
    Sketcher.Constraint("Coincident", 0, 2, 1, 1),
    Sketcher.Constraint("Coincident", 1, 2, 2, 1),
    Sketcher.Constraint("Coincident", 2, 2, 3, 1),
    Sketcher.Constraint("Coincident", 3, 2, 0, 1),
    Sketcher.Constraint("Horizontal", 0),
    Sketcher.Constraint("Vertical", 1),
    Sketcher.Constraint("Horizontal", 2),
    Sketcher.Constraint("Vertical", 3),
    Sketcher.Constraint("PointOnObject", 0, 2, -2),
    Sketcher.Constraint("Equal", 2, 1),
    Sketcher.Constraint("DistanceX", 0, 2, 0, 1, Q("2 in")),
    Sketcher.Constraint("Diameter", 4, Q("1.125 in")),
    Sketcher.Constraint("DistanceX", -1, 1, 4, 3, Q("1 in")),
    Sketcher.Constraint("DistanceY", 4, 3, 0, 2, Q("1 in")),
    Sketcher.Constraint("DistanceY", -1, 1, 4, 3, Q("5.688 in")),
])
sketch11.setExpression("Constraints[10]", "Params.sketch11_width")
sketch11.setExpression("Constraints[11]", "Params.sketch11_diameter")
pocket7 = body.newObject("PartDesign::Pocket", "Pocket006")
pocket7.Profile = sketch11
pocket7.setExpression("Length", "Params.pocket7_length")

sketch12 = body.newObject("Sketcher::SketchObject", "Sketch011")
sketch12.AttachmentSupport = (doc.getObject("XY_Plane"), [""])
sketch12.MapMode = "FlatFace"
sketch12.AttachmentOffset = App.Placement(V(0, 0, 1.125 * 25.4), App.Rotation())
sketch12.addGeometry([
    Part.LineSegment(V(0, 119, 0), V(51, 119, 0)),
    Part.LineSegment(V(51, 119, 0), V(51, 165, 0)),
    Part.LineSegment(V(51, 165, 0), V(0, 165, 0)),
    Part.LineSegment(V(0, 165, 0), V(0, 119, 0)),
    Part.Circle(V(25, 140, 0), V(0, 0, 1), 14),
], False)
sketch12.addConstraint([
    Sketcher.Constraint("Coincident", 0, 2, 1, 1),
    Sketcher.Constraint("Coincident", 1, 2, 2, 1),
    Sketcher.Constraint("Coincident", 2, 2, 3, 1),
    Sketcher.Constraint("Coincident", 3, 2, 0, 1),
    Sketcher.Constraint("Horizontal", 0),
    Sketcher.Constraint("Vertical", 1),
    Sketcher.Constraint("Horizontal", 2),
    Sketcher.Constraint("Vertical", 3),
    Sketcher.Constraint("PointOnObject", 2, 2, -2),
    Sketcher.Constraint("Diameter", 4, Q("1.125 in")),
    Sketcher.Constraint("DistanceX", -1, 1, 4, 3, Q("1 in")),
    Sketcher.Constraint("DistanceX", 4, 3, 0, 2, Q("1 in")),
    Sketcher.Constraint("DistanceY", 4, 3, 1, 2, Q("1 in")),
    Sketcher.Constraint("DistanceY", -1, 1, 4, 3, Q("5.5 in")),
    Sketcher.Constraint("DistanceY", 1, 1, 1, 2, Q("1.812 in")),
])
sketch12.setExpression("Constraints[9]", "Params.sketch12_diameter")
sketch12.setExpression("Constraints[14]", "Params.sketch12_height")
pad5 = body.newObject("PartDesign::Pad", "Pad004")
pad5.Profile = sketch12
pad5.setExpression("Length", "Params.pad5_length")
pad5.Reversed = True

doc.recompute()
